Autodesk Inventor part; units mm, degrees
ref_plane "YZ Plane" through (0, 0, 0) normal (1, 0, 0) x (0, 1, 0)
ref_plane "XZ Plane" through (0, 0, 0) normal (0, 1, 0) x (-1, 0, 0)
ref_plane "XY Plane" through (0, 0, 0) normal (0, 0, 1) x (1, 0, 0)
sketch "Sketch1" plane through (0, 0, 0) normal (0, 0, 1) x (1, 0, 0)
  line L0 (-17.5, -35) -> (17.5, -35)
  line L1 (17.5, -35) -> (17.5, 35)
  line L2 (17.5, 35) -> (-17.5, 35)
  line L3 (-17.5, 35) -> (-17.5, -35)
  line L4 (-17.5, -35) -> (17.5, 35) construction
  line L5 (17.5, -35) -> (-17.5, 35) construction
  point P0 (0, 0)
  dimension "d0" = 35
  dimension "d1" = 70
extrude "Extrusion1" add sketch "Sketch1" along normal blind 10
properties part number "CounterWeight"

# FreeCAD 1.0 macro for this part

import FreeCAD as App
import Part
import Sketcher
from FreeCAD import Vector
Q = App.Units.Quantity

doc = App.newDocument("Part")
body = doc.addObject("PartDesign::Body", "Body")

sketch1 = body.newObject("Sketcher::SketchObject", "Sketch")
sketch1.AttachmentSupport = (doc.getObject("XY_Plane"), [""])
sketch1.MapMode = "FlatFace"
sketch1.addGeometry(Part.LineSegment(Vector(-18, 35, 0), Vector(-18, -35, 0)), False)
sketch1.addGeometry(Part.LineSegment(Vector(-18, -35, 0), Vector(18, -35, 0)), False)
sketch1.addGeometry(Part.LineSegment(Vector(18, -35, 0), Vector(18, 35, 0)), False)
sketch1.addGeometry(Part.LineSegment(Vector(18, 35, 0), Vector(-18, 35, 0)), False)
sketch1.addConstraint(Sketcher.Constraint("Coincident", 0, 2, 1, 1))
sketch1.addConstraint(Sketcher.Constraint("Coincident", 1, 2, 2, 1))
sketch1.addConstraint(Sketcher.Constraint("Coincident", 2, 2, 3, 1))
sketch1.addConstraint(Sketcher.Constraint("Coincident", 3, 2, 0, 1))
sketch1.addConstraint(Sketcher.Constraint("Vertical", 0))
sketch1.addConstraint(Sketcher.Constraint("Horizontal", 1))
sketch1.addConstraint(Sketcher.Constraint("Vertical", 2))
sketch1.addConstraint(Sketcher.Constraint("Horizontal", 3))
sketch1.addConstraint(Sketcher.Constraint("Symmetric", 0, 2, 2, 2, -1, 1))
sketch1.addConstraint(Sketcher.Constraint("DistanceX", 1, 1, 1, 2, Q("35 mm")))
sketch1.addConstraint(Sketcher.Constraint("DistanceY", 0, 2, 0, 1, Q("70 mm")))
pad1 = body.newObject("PartDesign::Pad", "Pad")
pad1.Profile = sketch1
pad1.Length = 10

doc.recompute()
